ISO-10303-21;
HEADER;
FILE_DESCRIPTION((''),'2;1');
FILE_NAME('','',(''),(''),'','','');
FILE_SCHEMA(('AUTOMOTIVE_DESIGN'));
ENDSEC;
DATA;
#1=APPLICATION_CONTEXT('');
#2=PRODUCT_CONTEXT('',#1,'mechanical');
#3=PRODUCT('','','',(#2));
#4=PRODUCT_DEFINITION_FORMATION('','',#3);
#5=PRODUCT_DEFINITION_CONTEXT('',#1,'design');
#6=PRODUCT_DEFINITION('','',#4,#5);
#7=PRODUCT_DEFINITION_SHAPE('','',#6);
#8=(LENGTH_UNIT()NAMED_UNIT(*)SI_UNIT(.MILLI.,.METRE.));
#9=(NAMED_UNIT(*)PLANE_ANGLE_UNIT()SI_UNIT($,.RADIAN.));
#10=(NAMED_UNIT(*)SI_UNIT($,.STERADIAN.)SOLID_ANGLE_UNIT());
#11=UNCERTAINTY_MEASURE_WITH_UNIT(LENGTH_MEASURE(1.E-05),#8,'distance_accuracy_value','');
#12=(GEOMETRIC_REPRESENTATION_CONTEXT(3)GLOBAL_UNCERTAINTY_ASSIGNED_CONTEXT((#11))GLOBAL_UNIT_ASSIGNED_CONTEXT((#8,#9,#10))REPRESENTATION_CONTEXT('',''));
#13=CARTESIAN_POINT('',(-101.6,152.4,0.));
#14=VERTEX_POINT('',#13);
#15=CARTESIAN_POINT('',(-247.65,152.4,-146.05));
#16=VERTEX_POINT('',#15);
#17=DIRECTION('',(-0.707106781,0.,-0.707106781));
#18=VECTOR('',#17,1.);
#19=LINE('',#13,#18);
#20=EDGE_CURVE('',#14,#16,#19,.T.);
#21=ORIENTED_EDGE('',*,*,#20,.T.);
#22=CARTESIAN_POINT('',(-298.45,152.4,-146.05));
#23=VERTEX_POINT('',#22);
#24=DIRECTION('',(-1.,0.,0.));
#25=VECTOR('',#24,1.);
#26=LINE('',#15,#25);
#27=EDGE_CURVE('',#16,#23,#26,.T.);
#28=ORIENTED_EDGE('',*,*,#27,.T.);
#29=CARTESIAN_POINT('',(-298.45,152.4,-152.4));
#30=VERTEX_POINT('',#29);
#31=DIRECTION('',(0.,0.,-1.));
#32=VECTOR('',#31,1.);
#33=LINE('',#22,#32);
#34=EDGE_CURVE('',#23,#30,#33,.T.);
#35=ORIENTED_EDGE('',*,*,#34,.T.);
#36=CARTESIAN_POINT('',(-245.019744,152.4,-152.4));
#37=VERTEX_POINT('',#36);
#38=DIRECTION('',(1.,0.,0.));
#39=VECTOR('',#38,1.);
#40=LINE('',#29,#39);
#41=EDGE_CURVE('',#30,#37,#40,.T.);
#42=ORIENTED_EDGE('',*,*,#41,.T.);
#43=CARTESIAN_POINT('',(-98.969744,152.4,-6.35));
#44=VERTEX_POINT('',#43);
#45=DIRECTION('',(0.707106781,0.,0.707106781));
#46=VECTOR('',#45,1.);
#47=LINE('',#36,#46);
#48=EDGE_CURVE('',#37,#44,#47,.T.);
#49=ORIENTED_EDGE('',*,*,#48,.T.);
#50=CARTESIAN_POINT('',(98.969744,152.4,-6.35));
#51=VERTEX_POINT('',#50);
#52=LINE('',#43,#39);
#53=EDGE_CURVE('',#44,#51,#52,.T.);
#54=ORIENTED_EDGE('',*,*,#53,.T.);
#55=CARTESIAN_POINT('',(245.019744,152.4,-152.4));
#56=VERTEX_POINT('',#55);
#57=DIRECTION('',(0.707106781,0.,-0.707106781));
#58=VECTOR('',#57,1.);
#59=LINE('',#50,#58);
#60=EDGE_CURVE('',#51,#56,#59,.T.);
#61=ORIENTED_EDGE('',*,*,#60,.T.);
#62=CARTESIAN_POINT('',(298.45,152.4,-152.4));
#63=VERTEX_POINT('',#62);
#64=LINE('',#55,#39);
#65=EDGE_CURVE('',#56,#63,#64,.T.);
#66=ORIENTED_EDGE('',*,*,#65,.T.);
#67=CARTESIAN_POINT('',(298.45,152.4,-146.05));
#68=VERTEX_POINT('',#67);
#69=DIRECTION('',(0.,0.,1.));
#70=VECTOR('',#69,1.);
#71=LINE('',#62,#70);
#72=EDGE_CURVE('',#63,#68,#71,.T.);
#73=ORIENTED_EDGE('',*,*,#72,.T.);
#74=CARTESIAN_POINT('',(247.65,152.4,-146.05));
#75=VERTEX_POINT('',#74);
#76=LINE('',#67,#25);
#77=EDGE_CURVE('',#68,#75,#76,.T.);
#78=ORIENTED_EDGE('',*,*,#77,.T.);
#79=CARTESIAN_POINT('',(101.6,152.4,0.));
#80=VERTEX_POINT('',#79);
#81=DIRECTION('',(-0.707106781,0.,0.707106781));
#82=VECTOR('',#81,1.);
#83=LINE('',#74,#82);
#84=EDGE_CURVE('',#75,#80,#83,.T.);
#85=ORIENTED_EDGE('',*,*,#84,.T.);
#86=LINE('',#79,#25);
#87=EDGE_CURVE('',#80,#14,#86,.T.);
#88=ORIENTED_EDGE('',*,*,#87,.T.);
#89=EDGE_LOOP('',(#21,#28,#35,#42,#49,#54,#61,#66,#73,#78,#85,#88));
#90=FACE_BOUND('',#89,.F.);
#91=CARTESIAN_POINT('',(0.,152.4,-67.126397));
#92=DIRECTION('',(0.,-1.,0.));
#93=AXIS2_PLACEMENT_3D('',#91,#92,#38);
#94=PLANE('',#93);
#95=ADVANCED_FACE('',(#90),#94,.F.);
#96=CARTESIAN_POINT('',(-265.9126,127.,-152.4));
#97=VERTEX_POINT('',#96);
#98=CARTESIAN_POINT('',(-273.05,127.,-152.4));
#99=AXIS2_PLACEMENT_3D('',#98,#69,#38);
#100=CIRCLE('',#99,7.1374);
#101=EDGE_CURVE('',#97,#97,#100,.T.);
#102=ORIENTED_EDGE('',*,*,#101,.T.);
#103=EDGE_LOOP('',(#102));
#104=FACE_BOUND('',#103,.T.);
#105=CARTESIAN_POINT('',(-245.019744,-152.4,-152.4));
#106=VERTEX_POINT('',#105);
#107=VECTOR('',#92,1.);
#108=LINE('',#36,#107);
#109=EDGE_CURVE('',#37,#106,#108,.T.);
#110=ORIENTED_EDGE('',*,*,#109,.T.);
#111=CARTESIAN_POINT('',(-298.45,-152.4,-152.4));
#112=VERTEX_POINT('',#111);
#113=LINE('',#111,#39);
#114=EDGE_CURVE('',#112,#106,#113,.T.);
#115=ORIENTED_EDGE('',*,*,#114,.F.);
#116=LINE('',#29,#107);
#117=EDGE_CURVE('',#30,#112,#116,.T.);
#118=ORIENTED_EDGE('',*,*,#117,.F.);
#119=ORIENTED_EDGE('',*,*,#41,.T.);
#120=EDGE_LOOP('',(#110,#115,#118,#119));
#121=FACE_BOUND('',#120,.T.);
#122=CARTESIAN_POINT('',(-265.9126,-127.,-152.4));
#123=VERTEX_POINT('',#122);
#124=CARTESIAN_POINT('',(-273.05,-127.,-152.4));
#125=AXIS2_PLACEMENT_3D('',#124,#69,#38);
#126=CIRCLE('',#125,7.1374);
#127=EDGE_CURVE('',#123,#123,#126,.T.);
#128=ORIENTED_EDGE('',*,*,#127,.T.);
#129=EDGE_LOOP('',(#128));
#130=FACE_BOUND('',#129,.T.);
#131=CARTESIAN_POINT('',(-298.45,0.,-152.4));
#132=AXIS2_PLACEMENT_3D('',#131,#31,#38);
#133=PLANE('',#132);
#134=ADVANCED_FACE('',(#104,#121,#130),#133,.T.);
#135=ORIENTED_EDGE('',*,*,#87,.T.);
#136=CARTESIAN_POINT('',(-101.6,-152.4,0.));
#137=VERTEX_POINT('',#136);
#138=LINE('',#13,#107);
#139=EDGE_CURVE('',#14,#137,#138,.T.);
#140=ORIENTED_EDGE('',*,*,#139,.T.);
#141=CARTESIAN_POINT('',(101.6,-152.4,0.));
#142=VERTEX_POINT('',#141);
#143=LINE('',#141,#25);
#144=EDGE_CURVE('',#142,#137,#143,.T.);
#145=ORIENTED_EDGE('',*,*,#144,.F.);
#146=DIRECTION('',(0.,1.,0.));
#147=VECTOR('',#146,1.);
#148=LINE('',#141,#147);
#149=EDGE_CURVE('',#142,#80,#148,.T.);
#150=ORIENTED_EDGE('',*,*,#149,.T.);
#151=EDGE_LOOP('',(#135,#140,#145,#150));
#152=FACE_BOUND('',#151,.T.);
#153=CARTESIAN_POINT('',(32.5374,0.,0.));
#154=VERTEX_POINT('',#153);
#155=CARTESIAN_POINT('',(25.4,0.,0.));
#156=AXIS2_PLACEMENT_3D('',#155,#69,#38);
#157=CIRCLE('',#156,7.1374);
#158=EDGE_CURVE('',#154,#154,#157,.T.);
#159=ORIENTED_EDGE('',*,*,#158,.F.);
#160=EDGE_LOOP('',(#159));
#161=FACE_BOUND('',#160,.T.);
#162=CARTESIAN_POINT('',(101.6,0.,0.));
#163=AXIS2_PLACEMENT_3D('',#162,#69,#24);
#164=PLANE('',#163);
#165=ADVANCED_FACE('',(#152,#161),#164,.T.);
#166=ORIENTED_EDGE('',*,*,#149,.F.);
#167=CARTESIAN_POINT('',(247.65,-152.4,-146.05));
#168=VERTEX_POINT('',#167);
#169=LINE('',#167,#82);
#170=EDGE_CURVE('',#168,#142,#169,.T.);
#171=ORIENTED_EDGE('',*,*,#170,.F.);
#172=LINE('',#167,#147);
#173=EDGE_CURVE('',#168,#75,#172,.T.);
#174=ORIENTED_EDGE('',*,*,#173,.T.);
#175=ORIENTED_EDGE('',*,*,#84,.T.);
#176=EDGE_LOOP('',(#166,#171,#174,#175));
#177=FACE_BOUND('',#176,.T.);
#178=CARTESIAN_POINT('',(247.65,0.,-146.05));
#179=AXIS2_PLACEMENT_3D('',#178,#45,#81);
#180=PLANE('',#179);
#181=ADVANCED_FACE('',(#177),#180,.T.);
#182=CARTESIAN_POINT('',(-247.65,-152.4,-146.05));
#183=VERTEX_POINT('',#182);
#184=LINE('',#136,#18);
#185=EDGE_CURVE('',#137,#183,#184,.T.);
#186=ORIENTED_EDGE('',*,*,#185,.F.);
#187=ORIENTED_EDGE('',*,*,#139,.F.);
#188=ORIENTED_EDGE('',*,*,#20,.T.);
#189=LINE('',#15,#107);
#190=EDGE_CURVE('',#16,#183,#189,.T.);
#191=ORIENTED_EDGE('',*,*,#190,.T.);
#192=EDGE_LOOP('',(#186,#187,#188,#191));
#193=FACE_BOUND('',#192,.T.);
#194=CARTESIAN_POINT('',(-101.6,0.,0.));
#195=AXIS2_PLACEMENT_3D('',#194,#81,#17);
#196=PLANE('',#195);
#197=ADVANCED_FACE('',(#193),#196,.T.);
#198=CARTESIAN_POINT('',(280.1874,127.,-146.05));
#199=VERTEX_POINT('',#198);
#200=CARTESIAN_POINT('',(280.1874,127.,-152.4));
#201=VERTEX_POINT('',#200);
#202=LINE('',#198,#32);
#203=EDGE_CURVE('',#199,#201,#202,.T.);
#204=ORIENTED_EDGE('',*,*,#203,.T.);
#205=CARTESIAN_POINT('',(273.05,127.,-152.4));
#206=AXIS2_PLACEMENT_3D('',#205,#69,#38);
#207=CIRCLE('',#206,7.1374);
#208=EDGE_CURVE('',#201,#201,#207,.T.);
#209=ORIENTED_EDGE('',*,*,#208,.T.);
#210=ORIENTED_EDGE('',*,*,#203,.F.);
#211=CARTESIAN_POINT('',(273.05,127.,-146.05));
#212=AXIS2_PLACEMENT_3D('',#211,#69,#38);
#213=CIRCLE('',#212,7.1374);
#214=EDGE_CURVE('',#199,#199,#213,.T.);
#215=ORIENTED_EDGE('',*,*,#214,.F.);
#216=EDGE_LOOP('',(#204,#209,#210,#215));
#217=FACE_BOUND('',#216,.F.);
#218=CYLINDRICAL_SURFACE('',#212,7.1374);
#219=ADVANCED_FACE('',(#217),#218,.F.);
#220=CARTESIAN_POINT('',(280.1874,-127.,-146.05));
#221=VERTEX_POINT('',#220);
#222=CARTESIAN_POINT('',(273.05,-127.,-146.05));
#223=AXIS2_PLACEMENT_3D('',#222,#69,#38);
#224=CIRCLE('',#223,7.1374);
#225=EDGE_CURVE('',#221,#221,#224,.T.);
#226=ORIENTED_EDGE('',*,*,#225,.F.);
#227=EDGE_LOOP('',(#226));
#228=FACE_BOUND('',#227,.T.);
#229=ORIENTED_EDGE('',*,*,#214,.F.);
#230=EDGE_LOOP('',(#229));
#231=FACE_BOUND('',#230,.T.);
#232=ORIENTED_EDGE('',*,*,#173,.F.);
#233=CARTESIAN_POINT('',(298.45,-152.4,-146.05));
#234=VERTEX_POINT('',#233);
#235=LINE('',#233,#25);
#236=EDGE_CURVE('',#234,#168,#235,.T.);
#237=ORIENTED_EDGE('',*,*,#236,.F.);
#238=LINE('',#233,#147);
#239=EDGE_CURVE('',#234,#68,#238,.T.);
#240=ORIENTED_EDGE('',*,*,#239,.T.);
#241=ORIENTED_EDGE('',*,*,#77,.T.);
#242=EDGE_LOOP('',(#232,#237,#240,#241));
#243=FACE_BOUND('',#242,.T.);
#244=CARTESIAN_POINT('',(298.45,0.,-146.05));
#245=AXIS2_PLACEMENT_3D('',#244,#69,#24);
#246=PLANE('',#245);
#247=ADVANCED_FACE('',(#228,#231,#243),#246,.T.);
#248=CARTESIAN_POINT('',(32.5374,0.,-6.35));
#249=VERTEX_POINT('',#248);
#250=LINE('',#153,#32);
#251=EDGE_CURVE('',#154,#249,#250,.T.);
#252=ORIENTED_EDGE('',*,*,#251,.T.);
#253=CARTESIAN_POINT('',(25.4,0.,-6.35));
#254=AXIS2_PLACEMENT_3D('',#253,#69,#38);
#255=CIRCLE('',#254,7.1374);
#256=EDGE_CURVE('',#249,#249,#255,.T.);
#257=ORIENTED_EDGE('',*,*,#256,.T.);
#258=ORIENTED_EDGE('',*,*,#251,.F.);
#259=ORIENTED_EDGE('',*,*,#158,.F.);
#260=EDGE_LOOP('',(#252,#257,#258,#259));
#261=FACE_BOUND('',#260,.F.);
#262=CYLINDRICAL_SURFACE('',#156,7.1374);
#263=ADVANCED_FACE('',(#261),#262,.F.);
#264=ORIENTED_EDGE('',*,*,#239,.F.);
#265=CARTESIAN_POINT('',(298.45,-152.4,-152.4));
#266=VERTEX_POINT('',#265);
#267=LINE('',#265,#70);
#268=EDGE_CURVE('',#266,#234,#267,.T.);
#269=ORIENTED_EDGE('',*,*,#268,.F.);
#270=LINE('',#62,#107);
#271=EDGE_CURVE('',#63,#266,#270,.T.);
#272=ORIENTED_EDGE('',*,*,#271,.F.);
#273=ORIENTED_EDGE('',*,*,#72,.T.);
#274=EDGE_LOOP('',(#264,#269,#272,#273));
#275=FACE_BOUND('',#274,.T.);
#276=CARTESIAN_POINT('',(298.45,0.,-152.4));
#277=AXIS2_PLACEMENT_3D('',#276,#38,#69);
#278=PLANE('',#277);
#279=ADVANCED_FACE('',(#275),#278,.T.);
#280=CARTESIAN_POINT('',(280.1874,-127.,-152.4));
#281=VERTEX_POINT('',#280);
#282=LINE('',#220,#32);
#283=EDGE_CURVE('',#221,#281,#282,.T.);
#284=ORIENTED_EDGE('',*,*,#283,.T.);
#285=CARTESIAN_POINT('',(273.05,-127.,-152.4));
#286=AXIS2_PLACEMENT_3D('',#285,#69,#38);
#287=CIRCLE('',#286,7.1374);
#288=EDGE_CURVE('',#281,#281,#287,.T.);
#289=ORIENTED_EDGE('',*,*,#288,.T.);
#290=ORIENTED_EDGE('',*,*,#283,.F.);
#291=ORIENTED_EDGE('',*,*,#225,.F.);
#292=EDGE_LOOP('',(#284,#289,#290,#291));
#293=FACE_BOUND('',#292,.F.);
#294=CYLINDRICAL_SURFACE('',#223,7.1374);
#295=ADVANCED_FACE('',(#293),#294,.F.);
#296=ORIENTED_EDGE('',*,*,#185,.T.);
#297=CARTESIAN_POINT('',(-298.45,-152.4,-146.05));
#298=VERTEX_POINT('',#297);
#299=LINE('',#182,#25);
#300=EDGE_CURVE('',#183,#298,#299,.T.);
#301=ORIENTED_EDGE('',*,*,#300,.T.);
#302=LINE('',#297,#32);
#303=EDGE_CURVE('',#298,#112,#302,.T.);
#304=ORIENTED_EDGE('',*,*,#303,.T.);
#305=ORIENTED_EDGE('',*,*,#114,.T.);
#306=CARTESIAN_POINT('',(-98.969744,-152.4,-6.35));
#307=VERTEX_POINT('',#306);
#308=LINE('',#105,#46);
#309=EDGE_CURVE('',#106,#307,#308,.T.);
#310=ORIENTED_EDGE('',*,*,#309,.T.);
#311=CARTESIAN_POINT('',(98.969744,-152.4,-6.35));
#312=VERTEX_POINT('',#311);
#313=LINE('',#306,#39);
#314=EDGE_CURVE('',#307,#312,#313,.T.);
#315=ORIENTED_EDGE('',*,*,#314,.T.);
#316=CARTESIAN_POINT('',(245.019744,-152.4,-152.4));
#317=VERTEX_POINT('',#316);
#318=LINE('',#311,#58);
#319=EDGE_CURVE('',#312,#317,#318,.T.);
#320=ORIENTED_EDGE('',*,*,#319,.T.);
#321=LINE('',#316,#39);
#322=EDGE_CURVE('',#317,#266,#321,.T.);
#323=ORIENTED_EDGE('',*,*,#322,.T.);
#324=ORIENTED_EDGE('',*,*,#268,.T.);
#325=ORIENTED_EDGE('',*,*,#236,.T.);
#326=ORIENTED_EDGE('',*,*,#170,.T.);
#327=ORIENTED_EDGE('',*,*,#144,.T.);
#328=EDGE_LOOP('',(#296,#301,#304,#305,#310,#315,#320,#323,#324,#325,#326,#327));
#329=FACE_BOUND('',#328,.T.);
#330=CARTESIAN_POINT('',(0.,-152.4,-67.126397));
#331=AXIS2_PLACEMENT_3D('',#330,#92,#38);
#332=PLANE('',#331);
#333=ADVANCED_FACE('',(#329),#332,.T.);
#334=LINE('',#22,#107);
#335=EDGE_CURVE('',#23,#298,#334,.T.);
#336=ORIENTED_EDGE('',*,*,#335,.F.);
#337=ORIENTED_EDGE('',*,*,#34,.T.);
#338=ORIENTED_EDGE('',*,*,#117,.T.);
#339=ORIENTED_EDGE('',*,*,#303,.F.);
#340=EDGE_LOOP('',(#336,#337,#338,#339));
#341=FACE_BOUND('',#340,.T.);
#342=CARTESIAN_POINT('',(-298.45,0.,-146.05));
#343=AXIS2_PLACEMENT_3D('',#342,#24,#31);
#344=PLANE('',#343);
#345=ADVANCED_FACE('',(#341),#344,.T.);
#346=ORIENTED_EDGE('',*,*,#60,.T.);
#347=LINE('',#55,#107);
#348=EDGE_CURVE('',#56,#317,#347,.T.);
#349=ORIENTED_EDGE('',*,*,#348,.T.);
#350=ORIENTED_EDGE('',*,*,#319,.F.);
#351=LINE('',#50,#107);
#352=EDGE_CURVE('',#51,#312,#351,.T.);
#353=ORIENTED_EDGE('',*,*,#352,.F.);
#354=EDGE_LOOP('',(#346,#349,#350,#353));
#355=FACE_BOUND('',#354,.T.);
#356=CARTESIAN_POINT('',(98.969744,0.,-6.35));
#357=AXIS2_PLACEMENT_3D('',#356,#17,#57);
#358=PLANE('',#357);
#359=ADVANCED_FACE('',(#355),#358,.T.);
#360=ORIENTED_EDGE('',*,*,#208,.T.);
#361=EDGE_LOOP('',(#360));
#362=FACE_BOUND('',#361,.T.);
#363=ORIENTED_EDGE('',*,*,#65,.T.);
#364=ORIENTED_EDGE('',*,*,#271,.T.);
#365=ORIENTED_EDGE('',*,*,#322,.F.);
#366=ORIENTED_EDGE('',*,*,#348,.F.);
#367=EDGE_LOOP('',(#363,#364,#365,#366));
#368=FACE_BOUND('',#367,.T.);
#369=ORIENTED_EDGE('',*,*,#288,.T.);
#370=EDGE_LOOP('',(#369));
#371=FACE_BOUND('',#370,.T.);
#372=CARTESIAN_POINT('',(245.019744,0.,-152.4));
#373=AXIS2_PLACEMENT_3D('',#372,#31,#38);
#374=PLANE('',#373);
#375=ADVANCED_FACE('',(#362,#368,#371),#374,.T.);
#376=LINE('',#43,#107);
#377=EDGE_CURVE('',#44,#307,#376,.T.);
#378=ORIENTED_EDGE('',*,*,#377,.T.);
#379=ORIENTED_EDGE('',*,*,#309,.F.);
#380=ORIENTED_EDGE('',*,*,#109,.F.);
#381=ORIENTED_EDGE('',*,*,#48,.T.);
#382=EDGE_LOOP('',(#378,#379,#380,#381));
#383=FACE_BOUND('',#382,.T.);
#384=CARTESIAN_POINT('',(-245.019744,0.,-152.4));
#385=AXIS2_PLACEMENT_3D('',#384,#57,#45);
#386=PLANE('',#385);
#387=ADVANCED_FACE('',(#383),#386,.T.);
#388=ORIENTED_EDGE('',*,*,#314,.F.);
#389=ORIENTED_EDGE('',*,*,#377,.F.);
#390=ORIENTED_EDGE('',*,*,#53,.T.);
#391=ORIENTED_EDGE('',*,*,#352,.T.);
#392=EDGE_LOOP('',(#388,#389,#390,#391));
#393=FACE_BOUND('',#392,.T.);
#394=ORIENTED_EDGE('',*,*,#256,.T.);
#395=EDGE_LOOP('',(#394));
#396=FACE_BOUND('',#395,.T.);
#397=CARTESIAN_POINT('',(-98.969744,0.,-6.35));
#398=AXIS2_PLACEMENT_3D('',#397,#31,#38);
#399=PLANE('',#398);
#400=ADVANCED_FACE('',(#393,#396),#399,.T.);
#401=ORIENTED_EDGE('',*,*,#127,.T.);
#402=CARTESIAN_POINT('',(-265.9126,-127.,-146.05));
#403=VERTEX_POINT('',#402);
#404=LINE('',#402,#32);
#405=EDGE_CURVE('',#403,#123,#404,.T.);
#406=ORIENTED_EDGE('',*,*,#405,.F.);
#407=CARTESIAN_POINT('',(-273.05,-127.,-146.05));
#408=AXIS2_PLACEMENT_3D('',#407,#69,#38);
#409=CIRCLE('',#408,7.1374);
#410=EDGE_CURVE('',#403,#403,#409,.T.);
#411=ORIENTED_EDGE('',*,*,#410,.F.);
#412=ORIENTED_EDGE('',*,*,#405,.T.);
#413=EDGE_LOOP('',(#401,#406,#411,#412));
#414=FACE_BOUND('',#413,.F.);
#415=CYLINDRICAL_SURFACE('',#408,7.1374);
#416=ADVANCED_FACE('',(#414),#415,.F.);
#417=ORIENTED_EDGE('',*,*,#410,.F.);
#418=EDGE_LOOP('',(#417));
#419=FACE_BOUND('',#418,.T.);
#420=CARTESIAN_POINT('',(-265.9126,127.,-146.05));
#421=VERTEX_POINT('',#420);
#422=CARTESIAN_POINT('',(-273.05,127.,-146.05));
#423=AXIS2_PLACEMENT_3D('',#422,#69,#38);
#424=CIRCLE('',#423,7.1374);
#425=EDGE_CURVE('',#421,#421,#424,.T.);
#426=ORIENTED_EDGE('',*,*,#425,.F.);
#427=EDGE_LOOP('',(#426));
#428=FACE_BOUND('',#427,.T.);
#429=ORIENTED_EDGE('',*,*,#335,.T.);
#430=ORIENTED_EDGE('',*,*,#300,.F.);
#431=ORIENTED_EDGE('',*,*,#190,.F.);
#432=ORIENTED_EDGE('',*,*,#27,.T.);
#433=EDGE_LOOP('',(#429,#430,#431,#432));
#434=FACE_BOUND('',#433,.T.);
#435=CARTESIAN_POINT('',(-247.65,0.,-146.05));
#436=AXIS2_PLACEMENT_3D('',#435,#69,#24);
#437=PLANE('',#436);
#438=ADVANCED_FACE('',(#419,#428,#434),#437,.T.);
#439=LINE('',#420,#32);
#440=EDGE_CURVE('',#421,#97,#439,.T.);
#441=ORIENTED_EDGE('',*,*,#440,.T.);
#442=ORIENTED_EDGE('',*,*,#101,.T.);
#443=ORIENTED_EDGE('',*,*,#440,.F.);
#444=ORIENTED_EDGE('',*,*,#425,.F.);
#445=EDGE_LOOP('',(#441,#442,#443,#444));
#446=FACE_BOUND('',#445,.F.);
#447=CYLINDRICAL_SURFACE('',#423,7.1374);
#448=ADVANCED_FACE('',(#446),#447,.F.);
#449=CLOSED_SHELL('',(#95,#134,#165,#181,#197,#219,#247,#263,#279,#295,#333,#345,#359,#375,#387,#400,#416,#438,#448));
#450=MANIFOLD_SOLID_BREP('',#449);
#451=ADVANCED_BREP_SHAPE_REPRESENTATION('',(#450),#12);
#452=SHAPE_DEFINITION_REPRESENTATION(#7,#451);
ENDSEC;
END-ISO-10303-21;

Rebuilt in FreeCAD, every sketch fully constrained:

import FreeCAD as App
import Part
import Sketcher

V = App.Vector
Q = App.Units.Quantity

doc = App.newDocument("Part")
body = doc.addObject("PartDesign::Body", "Body")

# Sketch on XZ plane
sketch1 = body.newObject("Sketcher::SketchObject", "Sketch")
sketch1.AttachmentSupport = (doc.getObject("XZ_Plane"), [""])
sketch1.MapMode = "FlatFace"
sketch1.addGeometry([
    Part.LineSegment(V(102, 0, 0), V(-102, 0, 0)),  # 0
    Part.LineSegment(V(-102, 0, 0), V(-248, -146, 0)),  # 1
    Part.LineSegment(V(-248, -146, 0), V(-298, -146, 0)),  # 2
    Part.LineSegment(V(-298, -146, 0), V(-298, -152, 0)),  # 3
    Part.LineSegment(V(-298, -152, 0), V(-245, -152, 0)),  # 4
    Part.LineSegment(V(-245, -152, 0), V(-99, -6, 0)),  # 5
    Part.LineSegment(V(-99, -6, 0), V(99, -6, 0)),  # 6
    Part.LineSegment(V(99, -6, 0), V(245, -152, 0)),  # 7
    Part.LineSegment(V(245, -152, 0), V(298, -152, 0)),  # 8
    Part.LineSegment(V(298, -152, 0), V(298, -146, 0)),  # 9
    Part.LineSegment(V(298, -146, 0), V(248, -146, 0)),  # 10
    Part.LineSegment(V(248, -146, 0), V(102, 0, 0)),  # 11
], False)
sketch1.addConstraint([
    Sketcher.Constraint("Coincident", 0, 2, 1, 1),
    Sketcher.Constraint("Coincident", 1, 2, 2, 1),
    Sketcher.Constraint("Coincident", 2, 2, 3, 1),
    Sketcher.Constraint("Coincident", 3, 2, 4, 1),
    Sketcher.Constraint("Coincident", 4, 2, 5, 1),
    Sketcher.Constraint("Coincident", 5, 2, 6, 1),
    Sketcher.Constraint("Coincident", 6, 2, 7, 1),
    Sketcher.Constraint("Coincident", 7, 2, 8, 1),
    Sketcher.Constraint("Coincident", 8, 2, 9, 1),
    Sketcher.Constraint("Coincident", 9, 2, 10, 1),
    Sketcher.Constraint("Coincident", 10, 2, 11, 1),
    Sketcher.Constraint("Coincident", 11, 2, 0, 1),
    Sketcher.Constraint("Horizontal", 0),
    Sketcher.Constraint("Horizontal", 2),
    Sketcher.Constraint("Vertical", 3),
    Sketcher.Constraint("Horizontal", 4),
    Sketcher.Constraint("Horizontal", 6),
    Sketcher.Constraint("Horizontal", 8),
    Sketcher.Constraint("Vertical", 9),
    Sketcher.Constraint("Horizontal", 10),
    Sketcher.Constraint("Symmetric", 0, 2, 11, 2, -1, 1),
    Sketcher.Constraint("Symmetric", 4, 2, 7, 2, -2),
    Sketcher.Constraint("Symmetric", 2, 2, 9, 2, -2),
    Sketcher.Constraint("Parallel", 1, 5),
    Sketcher.Constraint("Perpendicular", 5, 7),
    Sketcher.Constraint("Parallel", 7, 11),
    Sketcher.Constraint("Equal", 2, 10),
    Sketcher.Constraint("Equal", 1, 5),
    Sketcher.Constraint("DistanceX", 0, 2, 0, 1, Q("8 in")),
    Sketcher.Constraint("DistanceX", 2, 2, 2, 1, Q("2 in")),
    Sketcher.Constraint("DistanceY", 3, 2, -1, 1, Q("6 in")),
    Sketcher.Constraint("DistanceY", 3, 2, 3, 1, Q("0.25 in")),
    Sketcher.Constraint("DistanceX", 6, 1, 6, 2, Q("197.939488 mm")),
])
pad1 = body.newObject("PartDesign::Pad", "Pad")
pad1.Profile = sketch1
pad1.Length = Q("12 in")
pad1.Midplane = True

# Sketch on XY plane
sketch2 = body.newObject("Sketcher::SketchObject", "Sketch001")
sketch2.AttachmentSupport = (doc.getObject("XY_Plane"), [""])
sketch2.MapMode = "FlatFace"
sketch2.AttachmentOffset = App.Placement(V(0, 0, -5.75 * 25.4), App.Rotation())
sketch2.addGeometry([
    Part.Circle(V(-273, -127, 0), V(0, 0, 1), 7),
    Part.Circle(V(-273, 127, 0), V(0, 0, 1), 7),
    Part.Circle(V(273, -127, 0), V(0, 0, 1), 7),
    Part.Circle(V(273, 127, 0), V(0, 0, 1), 7),
], False)
sketch2.addConstraint([
    Sketcher.Constraint("Equal", 0, 1),
    Sketcher.Constraint("Equal", 1, 2),
    Sketcher.Constraint("Equal", 2, 3),
    Sketcher.Constraint("Symmetric", 1, 3, 2, 3, -1, 1),
    Sketcher.Constraint("Symmetric", 0, 3, 3, 3, -1, 1),
    Sketcher.Constraint("Symmetric", 0, 3, 2, 3, -2),
    Sketcher.Constraint("Diameter", 0, Q("0.562 in")),
    Sketcher.Constraint("DistanceY", 0, 3, -1, 1, Q("5 in")),
    Sketcher.Constraint("DistanceX", 0, 3, 2, 3, Q("21.5 in")),
])
pocket1 = body.newObject("PartDesign::Pocket", "Pocket")
pocket1.Profile = sketch2
pocket1.Type = "ThroughAll"

# Sketch on XY plane
sketch3 = body.newObject("Sketcher::SketchObject", "Sketch002")
sketch3.AttachmentSupport = (doc.getObject("XY_Plane"), [""])
sketch3.MapMode = "FlatFace"
sketch3.addGeometry(Part.Circle(V(25, 0, 0), V(0, 0, 1), 7), False)
sketch3.addConstraint([
    Sketcher.Constraint("PointOnObject", 0, 3, -1),
    Sketcher.Constraint("Diameter", 0, Q("0.562 in")),
    Sketcher.Constraint("DistanceX", -1, 1, 0, 3, Q("1 in")),
])
pocket2 = body.newObject("PartDesign::Pocket", "Pocket001")
pocket2.Profile = sketch3
pocket2.Type = "ThroughAll"

doc.recompute()
